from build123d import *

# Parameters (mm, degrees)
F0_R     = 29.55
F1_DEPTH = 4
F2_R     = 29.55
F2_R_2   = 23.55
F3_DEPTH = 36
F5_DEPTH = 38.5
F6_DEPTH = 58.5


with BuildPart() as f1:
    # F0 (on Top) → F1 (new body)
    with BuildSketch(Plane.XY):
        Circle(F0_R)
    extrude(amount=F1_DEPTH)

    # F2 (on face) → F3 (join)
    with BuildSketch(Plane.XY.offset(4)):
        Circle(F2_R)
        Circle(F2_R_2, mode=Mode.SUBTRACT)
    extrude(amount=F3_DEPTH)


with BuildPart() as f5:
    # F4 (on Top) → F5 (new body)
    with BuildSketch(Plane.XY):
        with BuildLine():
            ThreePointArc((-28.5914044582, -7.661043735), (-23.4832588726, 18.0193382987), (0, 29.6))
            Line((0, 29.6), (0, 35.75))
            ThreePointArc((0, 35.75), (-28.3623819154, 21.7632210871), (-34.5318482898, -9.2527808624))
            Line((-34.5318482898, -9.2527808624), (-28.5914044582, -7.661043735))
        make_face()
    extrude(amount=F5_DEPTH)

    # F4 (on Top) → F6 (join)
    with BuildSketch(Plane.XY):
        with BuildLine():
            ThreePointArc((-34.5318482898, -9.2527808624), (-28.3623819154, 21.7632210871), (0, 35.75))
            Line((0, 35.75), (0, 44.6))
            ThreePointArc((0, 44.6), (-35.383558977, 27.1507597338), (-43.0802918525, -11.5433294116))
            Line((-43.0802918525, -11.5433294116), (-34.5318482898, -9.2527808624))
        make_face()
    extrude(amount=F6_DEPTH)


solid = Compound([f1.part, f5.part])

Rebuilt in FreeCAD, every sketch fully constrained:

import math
import FreeCAD as App
import Part
import Sketcher

V = App.Vector
Q = App.Units.Quantity

doc = App.newDocument("Part")
body = doc.addObject("PartDesign::Body", "Body")

sketch1 = body.newObject("Sketcher::SketchObject", "Sketch")
sketch1.AttachmentSupport = (doc.getObject("XY_Plane"), [""])
sketch1.MapMode = "FlatFace"
sketch1.addGeometry(Part.Circle(V(0, 0, 0), V(0, 0, 1), 30), False)
sketch1.addConstraint([
    Sketcher.Constraint("Coincident", 0, 3, -1, 1),
    Sketcher.Constraint("Diameter", 0, 59.1),
])
pad1 = body.newObject("PartDesign::Pad", "Pad")
pad1.Profile = sketch1
pad1.Length = 4

sketch2 = body.newObject("Sketcher::SketchObject", "Sketch001")
sketch2.AttachmentSupport = (doc.getObject("XY_Plane"), [""])
sketch2.MapMode = "FlatFace"
sketch2.AttachmentOffset = App.Placement(V(0, 0, 4), App.Rotation())
sketch2.addGeometry([
    Part.Circle(V(0, 0, 0), V(0, 0, 1), 30),
    Part.Circle(V(0, 0, 0), V(0, 0, 1), 24),
], False)
sketch2.addConstraint([
    Sketcher.Constraint("Coincident", 0, 3, -1, 1),
    Sketcher.Constraint("Coincident", 1, 3, -1, 1),
    Sketcher.Constraint("Diameter", 0, 59.1),
    Sketcher.Constraint("Diameter", 1, 47.1),
])
pad2 = body.newObject("PartDesign::Pad", "Pad001")
pad2.Profile = sketch2
pad2.Length = 36
body2 = doc.addObject("PartDesign::Body", "Body001")

sketch3 = body2.newObject("Sketcher::SketchObject", "Sketch002")
sketch3.AttachmentSupport = (doc.getObject("XY_Plane001"), [""])
sketch3.MapMode = "FlatFace"
sketch3.addGeometry([
    Part.ArcOfCircle(Part.Circle(V(0, 0, 0), V(0, 0, 1), 30), math.radians(90), math.radians(195)),
    Part.LineSegment(V(0, 30, 0), V(0, 36, 0)),
    Part.ArcOfCircle(Part.Circle(V(0, 0, 0), V(0, 0, 1), 36), math.radians(90), math.radians(195)),
    Part.LineSegment(V(-35, -9, 0), V(-29, -8, 0)),
], False)
sketch3.addConstraint([
    Sketcher.Constraint("Coincident", 0, 1, 1, 1),
    Sketcher.Constraint("Coincident", 1, 2, 2, 1),
    Sketcher.Constraint("Coincident", 2, 2, 3, 1),
    Sketcher.Constraint("Coincident", 3, 2, 0, 2),
    Sketcher.Constraint("Vertical", 1),
    Sketcher.Constraint("Coincident", 0, 3, -1, 1),
    Sketcher.Constraint("Coincident", 2, 3, -1, 1),
    Sketcher.Constraint("PointOnObject", 0, 1, -2),
    Sketcher.Constraint("Radius", 0, 29.6),
    Sketcher.Constraint("Angle", 3, Q("15 deg")),
    Sketcher.Constraint("Radius", 2, 35.75),
    Sketcher.Constraint("DistanceX", 2, 2, -1, 1, 34.531848),
])
pad3 = body2.newObject("PartDesign::Pad", "Pad002")
pad3.Profile = sketch3
pad3.Length = 38.5

sketch4 = body2.newObject("Sketcher::SketchObject", "Sketch003")
sketch4.AttachmentSupport = (doc.getObject("XY_Plane001"), [""])
sketch4.MapMode = "FlatFace"
sketch4.addGeometry([
    Part.ArcOfCircle(Part.Circle(V(0, 0, 0), V(0, 0, 1), 36), math.radians(90), math.radians(195)),
    Part.LineSegment(V(0, 36, 0), V(0, 45, 0)),
    Part.ArcOfCircle(Part.Circle(V(0, 0, 0), V(0, 0, 1), 45), math.radians(90), math.radians(195)),
    Part.LineSegment(V(-43, -12, 0), V(-35, -9, 0)),
], False)
sketch4.addConstraint([
    Sketcher.Constraint("Coincident", 0, 1, 1, 1),
    Sketcher.Constraint("Coincident", 1, 2, 2, 1),
    Sketcher.Constraint("Coincident", 2, 2, 3, 1),
    Sketcher.Constraint("Coincident", 3, 2, 0, 2),
    Sketcher.Constraint("Vertical", 1),
    Sketcher.Constraint("Coincident", 0, 3, -1, 1),
    Sketcher.Constraint("Coincident", 2, 3, -1, 1),
    Sketcher.Constraint("PointOnObject", 0, 1, -2),
    Sketcher.Constraint("Radius", 2, 44.6),
    Sketcher.Constraint("Angle", 3, Q("15 deg")),
    Sketcher.Constraint("Radius", 0, 35.75),
    Sketcher.Constraint("DistanceX", 2, 2, -1, 1, 43.080292),
])
pad4 = body2.newObject("PartDesign::Pad", "Pad003")
pad4.Profile = sketch4
pad4.Length = 58.5

doc.recompute()
